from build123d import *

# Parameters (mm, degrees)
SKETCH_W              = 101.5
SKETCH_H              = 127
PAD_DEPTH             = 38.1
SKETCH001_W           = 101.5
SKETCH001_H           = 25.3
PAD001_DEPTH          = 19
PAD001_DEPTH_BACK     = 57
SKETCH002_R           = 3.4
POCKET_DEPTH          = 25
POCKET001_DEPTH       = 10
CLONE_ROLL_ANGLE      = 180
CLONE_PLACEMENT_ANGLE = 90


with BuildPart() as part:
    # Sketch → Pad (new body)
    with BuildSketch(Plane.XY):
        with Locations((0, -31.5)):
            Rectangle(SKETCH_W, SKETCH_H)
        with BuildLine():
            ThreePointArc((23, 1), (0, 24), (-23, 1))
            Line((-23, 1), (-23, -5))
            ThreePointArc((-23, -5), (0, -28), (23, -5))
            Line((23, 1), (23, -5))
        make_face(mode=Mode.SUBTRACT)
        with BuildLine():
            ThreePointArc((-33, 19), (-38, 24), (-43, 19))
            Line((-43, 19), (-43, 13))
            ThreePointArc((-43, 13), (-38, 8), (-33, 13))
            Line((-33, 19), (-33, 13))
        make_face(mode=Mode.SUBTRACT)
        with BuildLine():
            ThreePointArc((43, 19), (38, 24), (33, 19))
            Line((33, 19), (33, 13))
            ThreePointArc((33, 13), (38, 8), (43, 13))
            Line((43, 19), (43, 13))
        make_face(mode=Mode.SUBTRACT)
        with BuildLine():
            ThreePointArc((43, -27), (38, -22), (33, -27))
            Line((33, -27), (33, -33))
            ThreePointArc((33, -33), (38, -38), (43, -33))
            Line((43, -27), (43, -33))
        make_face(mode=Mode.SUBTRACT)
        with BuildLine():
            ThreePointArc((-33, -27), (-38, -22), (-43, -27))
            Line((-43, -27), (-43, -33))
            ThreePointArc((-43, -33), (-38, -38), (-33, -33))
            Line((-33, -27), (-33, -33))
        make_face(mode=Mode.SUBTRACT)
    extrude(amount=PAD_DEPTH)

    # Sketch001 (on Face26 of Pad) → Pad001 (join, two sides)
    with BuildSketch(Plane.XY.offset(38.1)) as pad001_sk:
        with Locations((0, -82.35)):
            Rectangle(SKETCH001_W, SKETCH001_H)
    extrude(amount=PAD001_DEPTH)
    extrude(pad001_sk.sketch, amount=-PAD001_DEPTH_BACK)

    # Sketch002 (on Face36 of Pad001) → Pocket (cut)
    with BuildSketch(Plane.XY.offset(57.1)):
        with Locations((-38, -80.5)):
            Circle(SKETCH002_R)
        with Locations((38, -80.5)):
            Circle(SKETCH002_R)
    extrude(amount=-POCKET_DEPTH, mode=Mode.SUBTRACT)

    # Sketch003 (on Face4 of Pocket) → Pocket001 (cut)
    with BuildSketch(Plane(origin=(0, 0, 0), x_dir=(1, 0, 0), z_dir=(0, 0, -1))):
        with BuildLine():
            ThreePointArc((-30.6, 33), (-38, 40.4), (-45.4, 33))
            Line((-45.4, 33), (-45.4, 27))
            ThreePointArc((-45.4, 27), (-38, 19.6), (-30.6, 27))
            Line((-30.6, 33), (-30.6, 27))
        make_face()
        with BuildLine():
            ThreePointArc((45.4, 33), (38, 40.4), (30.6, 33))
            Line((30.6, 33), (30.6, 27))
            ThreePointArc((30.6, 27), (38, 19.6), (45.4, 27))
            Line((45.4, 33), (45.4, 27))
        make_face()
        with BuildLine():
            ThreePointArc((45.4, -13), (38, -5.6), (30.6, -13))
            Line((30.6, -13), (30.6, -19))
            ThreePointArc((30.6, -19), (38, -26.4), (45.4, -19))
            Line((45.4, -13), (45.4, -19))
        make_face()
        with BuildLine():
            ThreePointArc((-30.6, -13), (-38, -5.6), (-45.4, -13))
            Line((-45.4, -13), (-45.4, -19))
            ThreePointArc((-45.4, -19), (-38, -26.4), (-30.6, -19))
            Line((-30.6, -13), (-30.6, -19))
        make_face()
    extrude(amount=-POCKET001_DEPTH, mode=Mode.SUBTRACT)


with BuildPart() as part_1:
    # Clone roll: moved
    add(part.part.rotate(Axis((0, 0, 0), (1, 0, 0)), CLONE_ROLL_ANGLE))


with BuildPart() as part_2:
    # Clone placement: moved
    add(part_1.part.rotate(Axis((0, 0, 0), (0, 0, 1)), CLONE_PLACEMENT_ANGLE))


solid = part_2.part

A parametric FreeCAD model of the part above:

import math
import FreeCAD as App
import Part
import Sketcher

V = App.Vector

doc = App.newDocument("Part")
body = doc.addObject("PartDesign::Body", "Body")

# Sketch on XY plane
sketch1 = body.newObject("Sketcher::SketchObject", "Sketch")
sketch1.AttachmentSupport = (doc.getObject("XY_Plane"), [""])
sketch1.MapMode = "FlatFace"
sketch1.addGeometry([
    Part.LineSegment(V(-50.75, 32, 0), V(-50.75, -95, 0)),  # 0
    Part.LineSegment(V(-50.75, -95, 0), V(50.75, -95, 0)),  # 1
    Part.LineSegment(V(50.75, -95, 0), V(50.75, 32, 0)),  # 2
    Part.LineSegment(V(50.75, 32, 0), V(-50.75, 32, 0)),  # 3
    Part.ArcOfCircle(Part.Circle(V(-38, -27, 0), V(0, 0, 1), 5), math.radians(0), math.radians(180)),  # 4
    Part.LineSegment(V(-33, -27, 0), V(-33, -33, 0)),  # 5
    Part.ArcOfCircle(Part.Circle(V(-38, -33, 0), V(0, 0, 1), 5), math.radians(180), math.radians(360)),  # 6
    Part.LineSegment(V(-43, -33, 0), V(-43, -27, 0)),  # 7
    Part.ArcOfCircle(Part.Circle(V(38, -27, 0), V(0, 0, 1), 5), math.radians(0), math.radians(180)),  # 8
    Part.LineSegment(V(43, -27, 0), V(43, -33, 0)),  # 9
    Part.ArcOfCircle(Part.Circle(V(38, -33, 0), V(0, 0, 1), 5), math.radians(180), math.radians(360)),  # 10
    Part.LineSegment(V(33, -33, 0), V(33, -27, 0)),  # 11
    Part.ArcOfCircle(Part.Circle(V(-38, 19, 0), V(0, 0, 1), 5), math.radians(0), math.radians(180)),  # 12
    Part.LineSegment(V(-33, 19, 0), V(-33, 13, 0)),  # 13
    Part.ArcOfCircle(Part.Circle(V(-38, 13, 0), V(0, 0, 1), 5), math.radians(180), math.radians(360)),  # 14
    Part.LineSegment(V(-43, 13, 0), V(-43, 19, 0)),  # 15
    Part.ArcOfCircle(Part.Circle(V(0, 1, 0), V(0, 0, 1), 23), math.radians(0), math.radians(180)),  # 16
    Part.LineSegment(V(23, 1, 0), V(23, -5, 0)),  # 17
    Part.ArcOfCircle(Part.Circle(V(0, -5, 0), V(0, 0, 1), 23), math.radians(180), math.radians(360)),  # 18
    Part.LineSegment(V(-23, -5, 0), V(-23, 1, 0)),  # 19
    Part.ArcOfCircle(Part.Circle(V(38, 19, 0), V(0, 0, 1), 5), math.radians(0), math.radians(180)),  # 20
    Part.LineSegment(V(43, 19, 0), V(43, 13, 0)),  # 21
    Part.ArcOfCircle(Part.Circle(V(38, 13, 0), V(0, 0, 1), 5), math.radians(180), math.radians(360)),  # 22
    Part.LineSegment(V(33, 13, 0), V(33, 19, 0)),  # 23
], False)
sketch1.addConstraint([
    Sketcher.Constraint("Coincident", 0, 2, 1, 1),
    Sketcher.Constraint("Coincident", 1, 2, 2, 1),
    Sketcher.Constraint("Coincident", 2, 2, 3, 1),
    Sketcher.Constraint("Coincident", 3, 2, 0, 1),
    Sketcher.Constraint("Tangent", 4, 1, 5, 1),
    Sketcher.Constraint("Tangent", 5, 2, 6, 2),
    Sketcher.Constraint("Tangent", 6, 1, 7, 1),
    Sketcher.Constraint("Tangent", 7, 2, 4, 2),
    Sketcher.Constraint("Tangent", 8, 1, 9, 1),
    Sketcher.Constraint("Tangent", 9, 2, 10, 2),
    Sketcher.Constraint("Tangent", 10, 1, 11, 1),
    Sketcher.Constraint("Tangent", 11, 2, 8, 2),
    Sketcher.Constraint("Tangent", 12, 1, 13, 1),
    Sketcher.Constraint("Tangent", 13, 2, 14, 2),
    Sketcher.Constraint("Tangent", 14, 1, 15, 1),
    Sketcher.Constraint("Tangent", 15, 2, 12, 2),
    Sketcher.Constraint("Tangent", 16, 1, 17, 1),
    Sketcher.Constraint("Tangent", 17, 2, 18, 2),
    Sketcher.Constraint("Tangent", 18, 1, 19, 1),
    Sketcher.Constraint("Tangent", 19, 2, 16, 2),
    Sketcher.Constraint("Tangent", 20, 1, 21, 1),
    Sketcher.Constraint("Tangent", 21, 2, 22, 2),
    Sketcher.Constraint("Tangent", 22, 1, 23, 1),
    Sketcher.Constraint("Tangent", 23, 2, 20, 2),
    Sketcher.Constraint("Vertical", 0),
    Sketcher.Constraint("Horizontal", 1),
    Sketcher.Constraint("Vertical", 2),
    Sketcher.Constraint("Horizontal", 3),
    Sketcher.Constraint("Vertical", 5),
    Sketcher.Constraint("Vertical", 7),
    Sketcher.Constraint("Vertical", 9),
    Sketcher.Constraint("Vertical", 11),
    Sketcher.Constraint("Vertical", 13),
    Sketcher.Constraint("Vertical", 15),
    Sketcher.Constraint("Vertical", 17),
    Sketcher.Constraint("Vertical", 19),
    Sketcher.Constraint("Vertical", 21),
    Sketcher.Constraint("Vertical", 23),
    Sketcher.Constraint("Equal", 6, 8),
    Sketcher.Constraint("Equal", 10, 12),
    Sketcher.Constraint("Equal", 14, 20),
    Sketcher.Constraint("Symmetric", 4, 3, 8, 3, -2),
    Sketcher.Constraint("Symmetric", 12, 3, 20, 3, -2),
    Sketcher.Constraint("PointOnObject", 16, 3, -2),
    Sketcher.Constraint("Horizontal", 6, 3, 10, 3),
    Sketcher.Constraint("Horizontal", 14, 3, 22, 3),
    Sketcher.Constraint("Vertical", 6, 3, 12, 3),
    Sketcher.Constraint("Equal", 11, 13),
    Sketcher.Constraint("Equal", 15, 17),
    Sketcher.Constraint("Radius", 4, 5.0),
    Sketcher.Constraint("Radius", 16, 23.0),
    Sketcher.Constraint("DistanceY", 0, 2, 0, 1, 127.0),
    Sketcher.Constraint("DistanceY", 5, 2, 5, 1, 6.0),
    Sketcher.Constraint("DistanceX", 1, 1, 1, 2, 101.5),
    Sketcher.Constraint("DistanceX", 4, 3, -1, 1, 38.0),
    Sketcher.Constraint("DistanceY", 4, 3, -1, 1, 27.0),
    Sketcher.Constraint("DistanceY", -1, 1, 12, 3, 19.0),
    Sketcher.Constraint("DistanceY", -1, 1, 16, 3, 1.0),
    Sketcher.Constraint("DistanceY", 0, 2, -1, 1, 95.0),
    Sketcher.Constraint("DistanceX", 0, 2, -1, 1, 50.75),
])
pad1 = body.newObject("PartDesign::Pad", "Pad")
pad1.Profile = sketch1
pad1.Length = 38.1

# Sketch on XY plane
sketch2 = body.newObject("Sketcher::SketchObject", "Sketch001")
sketch2.AttachmentSupport = (doc.getObject("XY_Plane"), [""])
sketch2.MapMode = "FlatFace"
sketch2.AttachmentOffset = App.Placement(V(0, 0, 38.1), App.Rotation())
sketch2.addGeometry([
    Part.LineSegment(V(-50.75, -69.7, 0), V(-50.75, -95, 0)),
    Part.LineSegment(V(-50.75, -95, 0), V(50.75, -95, 0)),
    Part.LineSegment(V(50.75, -95, 0), V(50.75, -69.7, 0)),
    Part.LineSegment(V(50.75, -69.7, 0), V(-50.75, -69.7, 0)),
], False)
sketch2.addConstraint([
    Sketcher.Constraint("Coincident", 0, 2, 1, 1),
    Sketcher.Constraint("Coincident", 1, 2, 2, 1),
    Sketcher.Constraint("Coincident", 2, 2, 3, 1),
    Sketcher.Constraint("Coincident", 3, 2, 0, 1),
    Sketcher.Constraint("Vertical", 0),
    Sketcher.Constraint("Horizontal", 1),
    Sketcher.Constraint("Vertical", 2),
    Sketcher.Constraint("Horizontal", 3),
    Sketcher.Constraint("DistanceX", 1, 1, 1, 2, 101.5),
    Sketcher.Constraint("DistanceY", 0, 2, 0, 1, 25.3),
    Sketcher.Constraint("DistanceY", 0, 2, -1, 1, 95.0),
    Sketcher.Constraint("DistanceX", 0, 2, -1, 1, 50.75),
])
pad2 = body.newObject("PartDesign::Pad", "Pad001")
pad2.Profile = sketch2
pad2.Type = "TwoLengths"
pad2.Length = 19
pad2.Length2 = 57

# Sketch on XY plane
sketch3 = body.newObject("Sketcher::SketchObject", "Sketch002")
sketch3.AttachmentSupport = (doc.getObject("XY_Plane"), [""])
sketch3.MapMode = "FlatFace"
sketch3.AttachmentOffset = App.Placement(V(0, 0, 57.1), App.Rotation())
sketch3.addGeometry([
    Part.Circle(V(-38, -80.5, 0), V(0, 0, 1), 3.4),
    Part.Circle(V(38, -80.5, 0), V(0, 0, 1), 3.4),
], False)
sketch3.addConstraint([
    Sketcher.Constraint("Equal", 0, 1),
    Sketcher.Constraint("Symmetric", 0, 3, 1, 3, -2),
    Sketcher.Constraint("Diameter", 0, 6.8),
    Sketcher.Constraint("DistanceX", 0, 3, -1, 1, 38.0),
    Sketcher.Constraint("DistanceY", 0, 3, -1, 1, 80.5),
])
pocket1 = body.newObject("PartDesign::Pocket", "Pocket")
pocket1.Profile = sketch3
pocket1.Length = 25

# Sketch on XY plane
sketch4 = body.newObject("Sketcher::SketchObject", "Sketch003")
sketch4.AttachmentSupport = (doc.getObject("XY_Plane"), [""])
sketch4.MapMode = "FlatFace"
sketch4.addGeometry([
    Part.ArcOfCircle(Part.Circle(V(-38, -33, 0), V(0, 0, 1), 7.4), math.radians(180), math.radians(360)),  # 0
    Part.LineSegment(V(-45.4, -33, 0), V(-45.4, -27, 0)),  # 1
    Part.ArcOfCircle(Part.Circle(V(-38, -27, 0), V(0, 0, 1), 7.4), math.radians(0), math.radians(180)),  # 2
    Part.LineSegment(V(-30.6, -27, 0), V(-30.6, -33, 0)),  # 3
    Part.ArcOfCircle(Part.Circle(V(38, -33, 0), V(0, 0, 1), 7.4), math.radians(180), math.radians(360)),  # 4
    Part.LineSegment(V(30.6, -33, 0), V(30.6, -27, 0)),  # 5
    Part.ArcOfCircle(Part.Circle(V(38, -27, 0), V(0, 0, 1), 7.4), math.radians(0), math.radians(180)),  # 6
    Part.LineSegment(V(45.4, -27, 0), V(45.4, -33, 0)),  # 7
    Part.ArcOfCircle(Part.Circle(V(38, 13, 0), V(0, 0, 1), 7.4), math.radians(180), math.radians(360)),  # 8
    Part.LineSegment(V(30.6, 13, 0), V(30.6, 19, 0)),  # 9
    Part.ArcOfCircle(Part.Circle(V(38, 19, 0), V(0, 0, 1), 7.4), math.radians(0), math.radians(180)),  # 10
    Part.LineSegment(V(45.4, 19, 0), V(45.4, 13, 0)),  # 11
    Part.ArcOfCircle(Part.Circle(V(-38, 13, 0), V(0, 0, 1), 7.4), math.radians(180), math.radians(360)),  # 12
    Part.LineSegment(V(-45.4, 13, 0), V(-45.4, 19, 0)),  # 13
    Part.ArcOfCircle(Part.Circle(V(-38, 19, 0), V(0, 0, 1), 7.4), math.radians(0), math.radians(180)),  # 14
    Part.LineSegment(V(-30.6, 19, 0), V(-30.6, 13, 0)),  # 15
], False)
sketch4.addConstraint([
    Sketcher.Constraint("Tangent", 0, 1, 1, 1),
    Sketcher.Constraint("Tangent", 1, 2, 2, 2),
    Sketcher.Constraint("Tangent", 2, 1, 3, 1),
    Sketcher.Constraint("Tangent", 3, 2, 0, 2),
    Sketcher.Constraint("Tangent", 4, 1, 5, 1),
    Sketcher.Constraint("Tangent", 5, 2, 6, 2),
    Sketcher.Constraint("Tangent", 6, 1, 7, 1),
    Sketcher.Constraint("Tangent", 7, 2, 4, 2),
    Sketcher.Constraint("Tangent", 8, 1, 9, 1),
    Sketcher.Constraint("Tangent", 9, 2, 10, 2),
    Sketcher.Constraint("Tangent", 10, 1, 11, 1),
    Sketcher.Constraint("Tangent", 11, 2, 8, 2),
    Sketcher.Constraint("Tangent", 12, 1, 13, 1),
    Sketcher.Constraint("Tangent", 13, 2, 14, 2),
    Sketcher.Constraint("Tangent", 14, 1, 15, 1),
    Sketcher.Constraint("Tangent", 15, 2, 12, 2),
    Sketcher.Constraint("Vertical", 1),
    Sketcher.Constraint("Vertical", 3),
    Sketcher.Constraint("Vertical", 5),
    Sketcher.Constraint("Vertical", 7),
    Sketcher.Constraint("Vertical", 9),
    Sketcher.Constraint("Vertical", 11),
    Sketcher.Constraint("Vertical", 13),
    Sketcher.Constraint("Vertical", 15),
    Sketcher.Constraint("Equal", 2, 4),
    Sketcher.Constraint("Equal", 6, 8),
    Sketcher.Constraint("Equal", 10, 12),
    Sketcher.Constraint("Symmetric", 0, 3, 4, 3, -2),
    Sketcher.Constraint("Symmetric", 8, 3, 12, 3, -2),
    Sketcher.Constraint("Horizontal", 2, 3, 6, 3),
    Sketcher.Constraint("Horizontal", 10, 3, 14, 3),
    Sketcher.Constraint("Vertical", 6, 3, 8, 3),
    Sketcher.Constraint("Equal", 7, 9),
    Sketcher.Constraint("Radius", 0, 7.4),
    Sketcher.Constraint("DistanceY", 1, 1, 1, 2, 6.0),
    Sketcher.Constraint("DistanceX", 0, 3, -1, 1, 38.0),
    Sketcher.Constraint("DistanceY", 0, 3, -1, 1, 33.0),
    Sketcher.Constraint("DistanceY", -1, 1, 8, 3, 13.0),
])
pocket2 = body.newObject("PartDesign::Pocket", "Pocket001")
pocket2.Profile = sketch4
pocket2.Length = 10
pocket2.Reversed = True
body2 = doc.addObject("PartDesign::Body", "Body001")
doc.recompute()

body.Placement = App.Placement(V(0, 0, 0), App.Rotation(V(1, 0, 0), 180))
boolean = body2.newObject("PartDesign::Boolean", "Boolean")
boolean.Type = "Fuse"
boolean.addObjects([body])
body3 = doc.addObject("PartDesign::Body", "Body002")
doc.recompute()

body2.Placement = App.Placement(V(0, 0, 0), App.Rotation(V(0, 0, 1), 90))
boolean2 = body3.newObject("PartDesign::Boolean", "Boolean001")
boolean2.Type = "Fuse"
boolean2.addObjects([body2])

doc.recompute()
